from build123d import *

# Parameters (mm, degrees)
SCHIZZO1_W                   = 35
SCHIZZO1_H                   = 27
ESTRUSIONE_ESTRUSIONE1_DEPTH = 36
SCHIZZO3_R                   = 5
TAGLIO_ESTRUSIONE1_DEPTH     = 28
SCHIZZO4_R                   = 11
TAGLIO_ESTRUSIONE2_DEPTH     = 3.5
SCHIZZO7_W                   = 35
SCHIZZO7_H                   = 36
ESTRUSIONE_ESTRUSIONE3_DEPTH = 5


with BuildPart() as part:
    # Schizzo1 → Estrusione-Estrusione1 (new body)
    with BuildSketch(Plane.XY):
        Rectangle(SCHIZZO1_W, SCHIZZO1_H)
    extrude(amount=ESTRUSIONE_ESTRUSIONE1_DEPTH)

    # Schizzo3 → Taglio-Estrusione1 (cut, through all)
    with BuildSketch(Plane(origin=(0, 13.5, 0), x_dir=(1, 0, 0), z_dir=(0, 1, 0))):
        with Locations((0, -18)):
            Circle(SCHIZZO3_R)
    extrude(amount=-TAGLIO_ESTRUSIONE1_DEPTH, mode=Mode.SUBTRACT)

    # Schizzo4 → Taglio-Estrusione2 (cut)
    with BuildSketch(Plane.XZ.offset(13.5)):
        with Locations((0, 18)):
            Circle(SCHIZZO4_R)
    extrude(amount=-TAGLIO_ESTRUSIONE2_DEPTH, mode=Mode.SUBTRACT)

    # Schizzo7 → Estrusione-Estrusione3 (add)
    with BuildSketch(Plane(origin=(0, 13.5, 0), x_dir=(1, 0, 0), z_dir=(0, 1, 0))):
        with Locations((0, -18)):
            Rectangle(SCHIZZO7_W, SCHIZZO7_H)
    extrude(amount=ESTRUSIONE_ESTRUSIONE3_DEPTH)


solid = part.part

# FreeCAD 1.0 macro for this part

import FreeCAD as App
import Part
import Sketcher

V = App.Vector


def add_polygon(sketch, points):
    """Adds a closed chain of lines whose ends are joined by coincident constraints."""
    first, n = sketch.GeometryCount, len(points)
    for a, b in zip(points, points[1:] + points[:1]):
        sketch.addGeometry(Part.LineSegment(App.Vector(*a, 0), App.Vector(*b, 0)), False)
    for i in range(n):
        sketch.addConstraint(Sketcher.Constraint("Coincident", first + i, 2, first + (i + 1) % n, 1))

doc = App.newDocument("Part")
params = doc.addObject("Spreadsheet::Sheet", "Params")
for row, (alias, value) in enumerate([
    ("sketch1_width", "35 mm"),
    ("sketch1_height", "27 mm"),
    ("pad1_length", "36 mm"),
    ("sketch2_diameter", "10 mm"),
    ("sketch3_diameter", "22 mm"),
    ("pocket2_length", "3.5 mm"),
    ("sketch4_width", "35 mm"),
    ("sketch4_height", "36 mm"),
    ("pad2_length", "5 mm"),
], start=1):
    params.set(f"A{row}", alias)
    params.set(f"B{row}", "=" + value)
    params.setAlias(f"B{row}", alias)

body = doc.addObject("PartDesign::Body", "Body")

sketch1 = body.newObject("Sketcher::SketchObject", "Sketch")
sketch1.AttachmentSupport = (doc.getObject("XY_Plane"), [""])
sketch1.MapMode = "FlatFace"
add_polygon(sketch1, [(-17.5, 13.5), (-17.5, -13.5), (17.5, -13.5), (17.5, 13.5)])
sketch1.addConstraint(Sketcher.Constraint("Vertical", 0))
sketch1.addConstraint(Sketcher.Constraint("Horizontal", 1))
sketch1.addConstraint(Sketcher.Constraint("Vertical", 2))
sketch1.addConstraint(Sketcher.Constraint("Horizontal", 3))
sketch1.addConstraint(Sketcher.Constraint("Symmetric", 0, 2, 2, 2, -1, 1))
sketch1.addConstraint(Sketcher.Constraint("DistanceX", 1, 1, 1, 2, 35.0))
sketch1.addConstraint(Sketcher.Constraint("DistanceY", 0, 2, 0, 1, 27.0))
sketch1.setExpression("Constraints[9]", "Params.sketch1_width")
sketch1.setExpression("Constraints[10]", "Params.sketch1_height")
pad1 = body.newObject("PartDesign::Pad", "Pad")
pad1.Profile = sketch1
pad1.setExpression("Length", "Params.pad1_length")

sketch2 = body.newObject("Sketcher::SketchObject", "Sketch001")
sketch2.AttachmentSupport = (doc.getObject("XZ_Plane"), [""])
sketch2.MapMode = "FlatFace"
sketch2.AttachmentOffset = App.Placement(V(0, 0, -13.5), App.Rotation())
sketch2.addGeometry(Part.Circle(V(0, 18, 0), V(0, 0, 1), 5), False)
sketch2.addConstraint(Sketcher.Constraint("PointOnObject", 0, 3, -2))
sketch2.addConstraint(Sketcher.Constraint("Diameter", 0, 10.0))
sketch2.addConstraint(Sketcher.Constraint("DistanceY", -1, 1, 0, 3, 18.0))
sketch2.setExpression("Constraints[1]", "Params.sketch2_diameter")
pocket1 = body.newObject("PartDesign::Pocket", "Pocket")
pocket1.Profile = sketch2
pocket1.Type = "ThroughAll"
pocket1.Reversed = True

sketch3 = body.newObject("Sketcher::SketchObject", "Sketch002")
sketch3.AttachmentSupport = (doc.getObject("XZ_Plane"), [""])
sketch3.MapMode = "FlatFace"
sketch3.AttachmentOffset = App.Placement(V(0, 0, 13.5), App.Rotation())
sketch3.addGeometry(Part.Circle(V(0, 18, 0), V(0, 0, 1), 11), False)
sketch3.addConstraint(Sketcher.Constraint("PointOnObject", 0, 3, -2))
sketch3.addConstraint(Sketcher.Constraint("Diameter", 0, 22.0))
sketch3.addConstraint(Sketcher.Constraint("DistanceY", -1, 1, 0, 3, 18.0))
sketch3.setExpression("Constraints[1]", "Params.sketch3_diameter")
pocket2 = body.newObject("PartDesign::Pocket", "Pocket001")
pocket2.Profile = sketch3
pocket2.setExpression("Length", "Params.pocket2_length")

sketch4 = body.newObject("Sketcher::SketchObject", "Sketch003")
sketch4.AttachmentSupport = (doc.getObject("XZ_Plane"), [""])
sketch4.MapMode = "FlatFace"
sketch4.AttachmentOffset = App.Placement(V(0, 0, -13.5), App.Rotation())
add_polygon(sketch4, [(-17.5, 0), (-17.5, 36), (17.5, 36), (17.5, 0)])
sketch4.addConstraint(Sketcher.Constraint("Vertical", 0))
sketch4.addConstraint(Sketcher.Constraint("Horizontal", 1))
sketch4.addConstraint(Sketcher.Constraint("Vertical", 2))
sketch4.addConstraint(Sketcher.Constraint("Horizontal", 3))
sketch4.addConstraint(Sketcher.Constraint("Symmetric", 2, 2, 3, 2, -1, 1))
sketch4.addConstraint(Sketcher.Constraint("DistanceX", 1, 1, 1, 2, 35.0))
sketch4.addConstraint(Sketcher.Constraint("DistanceY", 0, 1, 0, 2, 36.0))
sketch4.setExpression("Constraints[9]", "Params.sketch4_width")
sketch4.setExpression("Constraints[10]", "Params.sketch4_height")
pad2 = body.newObject("PartDesign::Pad", "Pad001")
pad2.Profile = sketch4
pad2.setExpression("Length", "Params.pad2_length")
pad2.Reversed = True

doc.recompute()
